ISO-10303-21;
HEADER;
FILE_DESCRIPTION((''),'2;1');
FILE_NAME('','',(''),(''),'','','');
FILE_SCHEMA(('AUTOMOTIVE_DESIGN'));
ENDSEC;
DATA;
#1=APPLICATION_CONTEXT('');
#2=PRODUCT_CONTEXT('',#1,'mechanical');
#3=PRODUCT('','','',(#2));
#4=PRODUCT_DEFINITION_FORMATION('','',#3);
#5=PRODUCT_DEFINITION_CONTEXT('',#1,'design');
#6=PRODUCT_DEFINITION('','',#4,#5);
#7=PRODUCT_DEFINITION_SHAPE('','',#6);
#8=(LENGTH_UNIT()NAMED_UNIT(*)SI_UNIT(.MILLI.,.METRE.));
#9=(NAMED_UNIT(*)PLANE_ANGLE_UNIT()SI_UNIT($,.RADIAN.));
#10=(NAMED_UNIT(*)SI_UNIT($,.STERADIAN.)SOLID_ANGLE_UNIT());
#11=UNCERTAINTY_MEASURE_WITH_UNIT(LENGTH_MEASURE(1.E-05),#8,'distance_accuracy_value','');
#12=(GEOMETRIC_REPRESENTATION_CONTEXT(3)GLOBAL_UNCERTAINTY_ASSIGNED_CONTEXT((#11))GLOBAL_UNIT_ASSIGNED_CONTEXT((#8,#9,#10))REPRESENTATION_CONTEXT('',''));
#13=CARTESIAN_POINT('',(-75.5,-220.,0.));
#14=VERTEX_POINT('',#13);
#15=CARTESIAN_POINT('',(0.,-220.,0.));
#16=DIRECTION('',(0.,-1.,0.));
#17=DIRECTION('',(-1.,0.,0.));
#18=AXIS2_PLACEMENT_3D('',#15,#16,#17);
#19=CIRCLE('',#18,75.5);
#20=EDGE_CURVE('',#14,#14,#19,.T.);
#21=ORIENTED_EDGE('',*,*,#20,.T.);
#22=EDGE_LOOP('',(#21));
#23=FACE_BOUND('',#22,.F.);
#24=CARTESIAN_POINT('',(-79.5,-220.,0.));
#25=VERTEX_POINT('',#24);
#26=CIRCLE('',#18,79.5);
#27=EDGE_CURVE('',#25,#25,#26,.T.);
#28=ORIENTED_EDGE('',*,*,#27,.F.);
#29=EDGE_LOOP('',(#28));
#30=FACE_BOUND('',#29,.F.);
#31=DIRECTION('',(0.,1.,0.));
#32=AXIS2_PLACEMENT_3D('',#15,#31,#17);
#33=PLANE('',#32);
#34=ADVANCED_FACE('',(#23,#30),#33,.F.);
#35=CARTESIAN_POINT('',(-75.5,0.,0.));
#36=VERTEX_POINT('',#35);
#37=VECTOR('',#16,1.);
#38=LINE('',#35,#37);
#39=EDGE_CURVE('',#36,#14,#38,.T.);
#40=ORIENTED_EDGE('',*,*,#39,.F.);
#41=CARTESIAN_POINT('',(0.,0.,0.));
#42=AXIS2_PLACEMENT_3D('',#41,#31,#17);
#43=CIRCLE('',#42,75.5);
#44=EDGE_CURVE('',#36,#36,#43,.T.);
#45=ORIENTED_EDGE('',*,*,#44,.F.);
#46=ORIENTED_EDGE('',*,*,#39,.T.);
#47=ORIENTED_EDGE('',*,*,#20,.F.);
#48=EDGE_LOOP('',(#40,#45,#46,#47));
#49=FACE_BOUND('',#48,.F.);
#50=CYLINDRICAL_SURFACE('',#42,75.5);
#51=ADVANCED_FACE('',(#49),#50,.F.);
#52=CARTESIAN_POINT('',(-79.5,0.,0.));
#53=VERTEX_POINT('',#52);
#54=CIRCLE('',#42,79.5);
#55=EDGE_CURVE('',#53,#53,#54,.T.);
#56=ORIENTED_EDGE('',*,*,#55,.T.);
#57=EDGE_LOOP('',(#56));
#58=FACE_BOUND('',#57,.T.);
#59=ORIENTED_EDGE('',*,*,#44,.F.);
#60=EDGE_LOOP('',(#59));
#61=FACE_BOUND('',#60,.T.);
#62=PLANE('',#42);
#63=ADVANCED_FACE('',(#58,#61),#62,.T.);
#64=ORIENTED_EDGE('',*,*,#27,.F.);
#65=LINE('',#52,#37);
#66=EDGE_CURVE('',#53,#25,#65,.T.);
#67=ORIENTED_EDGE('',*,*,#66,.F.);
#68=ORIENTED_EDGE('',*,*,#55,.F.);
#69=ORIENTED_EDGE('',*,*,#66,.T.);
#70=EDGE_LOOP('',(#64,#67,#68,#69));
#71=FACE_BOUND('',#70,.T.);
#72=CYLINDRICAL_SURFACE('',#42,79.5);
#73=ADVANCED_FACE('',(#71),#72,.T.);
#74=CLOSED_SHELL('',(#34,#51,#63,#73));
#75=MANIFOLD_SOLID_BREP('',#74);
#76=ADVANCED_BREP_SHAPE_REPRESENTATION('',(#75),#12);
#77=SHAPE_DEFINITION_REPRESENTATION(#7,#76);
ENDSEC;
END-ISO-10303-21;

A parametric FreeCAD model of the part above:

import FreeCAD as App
import Part
import Sketcher

doc = App.newDocument("Part")
params = doc.addObject("Spreadsheet::Sheet", "Params")
for row, (alias, value) in enumerate([
    ("sketch1_diameter", "159 mm"),
    ("sketch1_diameter2", "151 mm"),
    ("pad1_length", "220 mm"),
], start=1):
    params.set(f"A{row}", alias)
    params.set(f"B{row}", "=" + value)
    params.setAlias(f"B{row}", alias)

body = doc.addObject("PartDesign::Body", "Body")

# Sketch on XZ plane
sketch1 = body.newObject("Sketcher::SketchObject", "Sketch")
sketch1.AttachmentSupport = (doc.getObject("XZ_Plane"), [""])
sketch1.MapMode = "FlatFace"
sketch1.addGeometry([
    Part.Circle(App.Vector(0, 0, 0), App.Vector(0, 0, 1), 79.5),
    Part.Circle(App.Vector(0, 0, 0), App.Vector(0, 0, 1), 75.5),
], False)
sketch1.addConstraint([
    Sketcher.Constraint("Coincident", 0, 3, -1, 1),
    Sketcher.Constraint("Coincident", 1, 3, -1, 1),
    Sketcher.Constraint("Diameter", 0, 159.0),
    Sketcher.Constraint("Diameter", 1, 151.0),
])
sketch1.setExpression("Constraints[2]", "Params.sketch1_diameter")
sketch1.setExpression("Constraints[3]", "Params.sketch1_diameter2")
pad1 = body.newObject("PartDesign::Pad", "Pad")
pad1.Profile = sketch1
pad1.setExpression("Length", "Params.pad1_length")

doc.recompute()
